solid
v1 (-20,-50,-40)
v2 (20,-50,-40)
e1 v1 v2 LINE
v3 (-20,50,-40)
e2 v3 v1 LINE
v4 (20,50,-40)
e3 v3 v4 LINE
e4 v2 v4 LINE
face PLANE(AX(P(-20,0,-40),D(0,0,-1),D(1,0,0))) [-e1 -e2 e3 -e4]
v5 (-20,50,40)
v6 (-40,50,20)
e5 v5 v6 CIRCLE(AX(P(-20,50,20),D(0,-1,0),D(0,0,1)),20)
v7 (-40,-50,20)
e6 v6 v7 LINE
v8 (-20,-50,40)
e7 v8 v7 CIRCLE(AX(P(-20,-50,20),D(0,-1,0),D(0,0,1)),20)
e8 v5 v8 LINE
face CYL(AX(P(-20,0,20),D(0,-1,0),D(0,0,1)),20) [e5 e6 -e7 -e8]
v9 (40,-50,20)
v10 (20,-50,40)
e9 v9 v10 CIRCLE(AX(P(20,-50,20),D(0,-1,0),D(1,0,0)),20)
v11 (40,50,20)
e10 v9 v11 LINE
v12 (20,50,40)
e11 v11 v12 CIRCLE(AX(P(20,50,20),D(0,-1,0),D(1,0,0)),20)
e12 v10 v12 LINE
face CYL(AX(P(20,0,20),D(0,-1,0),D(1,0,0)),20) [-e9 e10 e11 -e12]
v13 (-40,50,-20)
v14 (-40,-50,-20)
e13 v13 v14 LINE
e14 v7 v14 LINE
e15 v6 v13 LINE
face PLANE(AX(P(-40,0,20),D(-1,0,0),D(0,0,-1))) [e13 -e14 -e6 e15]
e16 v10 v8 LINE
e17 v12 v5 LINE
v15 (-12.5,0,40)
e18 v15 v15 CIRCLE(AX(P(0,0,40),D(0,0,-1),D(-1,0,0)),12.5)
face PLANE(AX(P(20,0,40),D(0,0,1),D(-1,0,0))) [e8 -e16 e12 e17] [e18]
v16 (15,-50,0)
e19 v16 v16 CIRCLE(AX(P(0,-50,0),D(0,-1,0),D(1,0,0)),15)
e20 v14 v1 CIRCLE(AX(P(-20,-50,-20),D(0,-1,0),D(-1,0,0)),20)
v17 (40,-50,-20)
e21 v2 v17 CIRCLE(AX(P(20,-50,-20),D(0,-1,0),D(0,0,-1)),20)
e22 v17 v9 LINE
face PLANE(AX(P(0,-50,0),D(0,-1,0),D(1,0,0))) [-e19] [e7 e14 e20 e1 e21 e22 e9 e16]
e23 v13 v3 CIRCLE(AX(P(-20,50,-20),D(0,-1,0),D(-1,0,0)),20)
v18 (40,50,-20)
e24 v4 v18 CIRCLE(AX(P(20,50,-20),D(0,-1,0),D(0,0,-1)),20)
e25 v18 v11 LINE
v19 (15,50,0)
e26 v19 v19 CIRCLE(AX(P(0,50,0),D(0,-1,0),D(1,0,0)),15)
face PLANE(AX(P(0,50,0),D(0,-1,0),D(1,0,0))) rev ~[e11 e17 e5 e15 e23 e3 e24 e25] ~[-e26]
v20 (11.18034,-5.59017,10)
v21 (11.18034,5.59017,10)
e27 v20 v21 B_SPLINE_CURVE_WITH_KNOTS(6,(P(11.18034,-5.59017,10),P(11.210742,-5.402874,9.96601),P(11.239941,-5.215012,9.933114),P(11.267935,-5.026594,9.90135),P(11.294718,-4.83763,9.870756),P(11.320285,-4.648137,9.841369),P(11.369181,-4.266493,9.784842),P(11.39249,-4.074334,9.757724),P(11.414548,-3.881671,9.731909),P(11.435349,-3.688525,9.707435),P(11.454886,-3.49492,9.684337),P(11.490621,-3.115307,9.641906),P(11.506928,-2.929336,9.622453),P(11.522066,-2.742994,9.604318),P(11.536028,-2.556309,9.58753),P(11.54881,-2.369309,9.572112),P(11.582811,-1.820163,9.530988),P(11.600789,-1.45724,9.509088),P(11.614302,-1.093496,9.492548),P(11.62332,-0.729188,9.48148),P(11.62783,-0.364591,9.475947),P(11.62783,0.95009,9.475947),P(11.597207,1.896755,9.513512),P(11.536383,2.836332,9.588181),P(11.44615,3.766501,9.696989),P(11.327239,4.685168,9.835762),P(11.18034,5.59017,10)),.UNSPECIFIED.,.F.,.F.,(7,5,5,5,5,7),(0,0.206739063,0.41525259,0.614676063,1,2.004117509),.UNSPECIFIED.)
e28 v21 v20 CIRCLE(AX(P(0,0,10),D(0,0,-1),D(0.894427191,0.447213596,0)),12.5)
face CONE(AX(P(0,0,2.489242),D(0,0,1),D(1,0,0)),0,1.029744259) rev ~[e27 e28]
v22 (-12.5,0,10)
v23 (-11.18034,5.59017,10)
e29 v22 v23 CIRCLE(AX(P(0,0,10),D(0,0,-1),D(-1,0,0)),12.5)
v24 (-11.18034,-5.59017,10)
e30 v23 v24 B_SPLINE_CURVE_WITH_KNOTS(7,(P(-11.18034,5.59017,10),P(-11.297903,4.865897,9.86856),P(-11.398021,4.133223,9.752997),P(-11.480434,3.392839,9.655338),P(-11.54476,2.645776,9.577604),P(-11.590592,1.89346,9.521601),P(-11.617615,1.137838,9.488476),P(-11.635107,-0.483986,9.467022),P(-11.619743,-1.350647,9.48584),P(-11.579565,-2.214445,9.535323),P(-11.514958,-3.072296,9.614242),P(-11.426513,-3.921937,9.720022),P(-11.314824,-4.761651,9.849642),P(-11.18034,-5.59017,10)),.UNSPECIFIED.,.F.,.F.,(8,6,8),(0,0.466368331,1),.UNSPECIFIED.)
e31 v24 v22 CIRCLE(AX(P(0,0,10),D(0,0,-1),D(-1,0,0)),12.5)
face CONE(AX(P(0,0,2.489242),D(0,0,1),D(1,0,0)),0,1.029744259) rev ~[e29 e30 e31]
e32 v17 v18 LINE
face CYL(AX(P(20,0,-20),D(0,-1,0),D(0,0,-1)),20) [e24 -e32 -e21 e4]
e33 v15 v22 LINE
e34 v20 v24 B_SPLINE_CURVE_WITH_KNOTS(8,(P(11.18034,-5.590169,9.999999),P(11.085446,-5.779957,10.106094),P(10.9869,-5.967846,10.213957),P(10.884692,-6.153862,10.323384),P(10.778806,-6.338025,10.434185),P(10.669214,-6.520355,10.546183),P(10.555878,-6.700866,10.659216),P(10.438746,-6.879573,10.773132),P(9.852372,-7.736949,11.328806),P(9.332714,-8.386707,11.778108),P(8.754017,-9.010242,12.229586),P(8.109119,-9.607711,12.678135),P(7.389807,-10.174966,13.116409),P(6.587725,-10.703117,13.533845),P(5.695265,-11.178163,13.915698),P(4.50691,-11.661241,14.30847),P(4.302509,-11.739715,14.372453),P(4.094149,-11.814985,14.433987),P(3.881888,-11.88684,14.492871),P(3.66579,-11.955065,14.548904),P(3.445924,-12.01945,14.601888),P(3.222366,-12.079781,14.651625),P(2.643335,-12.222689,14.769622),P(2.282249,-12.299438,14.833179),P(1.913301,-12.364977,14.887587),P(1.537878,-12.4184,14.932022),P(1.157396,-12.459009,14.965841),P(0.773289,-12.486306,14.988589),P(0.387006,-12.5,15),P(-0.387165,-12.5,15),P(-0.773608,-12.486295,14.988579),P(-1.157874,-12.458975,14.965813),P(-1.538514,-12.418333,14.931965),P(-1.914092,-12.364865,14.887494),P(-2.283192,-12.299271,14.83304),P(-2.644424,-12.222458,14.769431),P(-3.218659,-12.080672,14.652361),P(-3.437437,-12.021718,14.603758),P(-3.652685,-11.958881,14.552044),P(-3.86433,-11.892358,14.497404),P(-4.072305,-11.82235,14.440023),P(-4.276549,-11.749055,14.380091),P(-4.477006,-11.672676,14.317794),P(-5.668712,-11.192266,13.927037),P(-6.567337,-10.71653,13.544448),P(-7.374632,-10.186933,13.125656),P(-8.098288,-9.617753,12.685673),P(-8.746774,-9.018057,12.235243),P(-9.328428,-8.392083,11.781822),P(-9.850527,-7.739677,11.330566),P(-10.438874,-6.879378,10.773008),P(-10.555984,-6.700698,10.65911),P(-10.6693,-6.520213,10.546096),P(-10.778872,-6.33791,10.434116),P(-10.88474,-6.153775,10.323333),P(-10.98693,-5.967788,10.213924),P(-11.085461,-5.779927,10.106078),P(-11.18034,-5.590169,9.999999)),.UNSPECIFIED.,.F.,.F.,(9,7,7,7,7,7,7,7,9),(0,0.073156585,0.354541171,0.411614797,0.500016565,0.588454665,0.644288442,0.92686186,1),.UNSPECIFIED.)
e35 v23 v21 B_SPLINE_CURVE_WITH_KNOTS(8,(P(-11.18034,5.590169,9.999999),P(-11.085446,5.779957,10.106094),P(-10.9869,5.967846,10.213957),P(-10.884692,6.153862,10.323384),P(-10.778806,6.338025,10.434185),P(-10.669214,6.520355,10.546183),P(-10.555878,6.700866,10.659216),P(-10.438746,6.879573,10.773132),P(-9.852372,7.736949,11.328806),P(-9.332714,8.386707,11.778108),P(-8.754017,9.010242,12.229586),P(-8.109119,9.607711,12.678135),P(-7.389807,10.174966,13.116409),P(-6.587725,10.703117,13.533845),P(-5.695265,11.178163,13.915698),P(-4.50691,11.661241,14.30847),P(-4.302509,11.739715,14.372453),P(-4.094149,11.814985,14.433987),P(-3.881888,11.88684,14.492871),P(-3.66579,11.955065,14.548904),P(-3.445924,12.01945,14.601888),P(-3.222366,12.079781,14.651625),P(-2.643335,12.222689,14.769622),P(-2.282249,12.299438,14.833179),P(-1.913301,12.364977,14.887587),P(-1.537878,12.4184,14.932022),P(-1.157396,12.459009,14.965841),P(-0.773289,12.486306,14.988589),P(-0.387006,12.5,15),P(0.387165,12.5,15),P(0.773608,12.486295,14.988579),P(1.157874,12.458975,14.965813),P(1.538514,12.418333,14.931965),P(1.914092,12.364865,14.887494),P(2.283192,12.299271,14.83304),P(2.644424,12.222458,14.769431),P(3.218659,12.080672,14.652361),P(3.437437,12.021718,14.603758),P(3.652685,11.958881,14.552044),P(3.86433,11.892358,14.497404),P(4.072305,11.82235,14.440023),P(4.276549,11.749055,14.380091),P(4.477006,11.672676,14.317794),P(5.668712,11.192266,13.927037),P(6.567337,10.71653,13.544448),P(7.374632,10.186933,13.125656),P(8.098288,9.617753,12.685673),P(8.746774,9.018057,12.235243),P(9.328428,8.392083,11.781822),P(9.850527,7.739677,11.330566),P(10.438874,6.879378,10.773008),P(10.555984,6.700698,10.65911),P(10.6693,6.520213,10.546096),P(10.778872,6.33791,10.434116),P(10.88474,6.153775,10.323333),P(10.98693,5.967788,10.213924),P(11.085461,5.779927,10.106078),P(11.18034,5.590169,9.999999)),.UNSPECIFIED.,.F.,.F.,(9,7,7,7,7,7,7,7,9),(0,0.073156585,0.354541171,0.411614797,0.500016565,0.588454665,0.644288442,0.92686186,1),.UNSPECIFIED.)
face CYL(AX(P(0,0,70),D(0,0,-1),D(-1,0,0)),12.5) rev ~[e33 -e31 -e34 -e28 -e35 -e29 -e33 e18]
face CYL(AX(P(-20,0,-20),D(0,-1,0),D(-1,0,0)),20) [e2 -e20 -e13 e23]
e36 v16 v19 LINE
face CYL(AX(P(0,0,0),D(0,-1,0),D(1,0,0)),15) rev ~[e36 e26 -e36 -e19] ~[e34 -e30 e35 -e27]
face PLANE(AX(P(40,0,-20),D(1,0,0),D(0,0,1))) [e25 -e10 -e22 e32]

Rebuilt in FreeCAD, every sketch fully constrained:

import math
import FreeCAD as App
import Part
import Sketcher
from FreeCAD import Vector
Q = App.Units.Quantity

doc = App.newDocument("Part")
body = doc.addObject("PartDesign::Body", "Body")

sketch1 = body.newObject("Sketcher::SketchObject", "Sketch")
sketch1.AttachmentSupport = (doc.getObject("XZ_Plane"), [""])
sketch1.MapMode = "FlatFace"
sketch1.addGeometry([
    Part.LineSegment(Vector(20, 40, 0), Vector(-20, 40, 0)),
    Part.ArcOfCircle(Part.Circle(Vector(-20, 20, 0), Vector(0, 0, 1), 20), math.radians(90), math.radians(180)),
    Part.LineSegment(Vector(-40, 20, 0), Vector(-40, -20, 0)),
    Part.ArcOfCircle(Part.Circle(Vector(-20, -20, 0), Vector(0, 0, 1), 20), math.radians(180), math.radians(270)),
    Part.LineSegment(Vector(-20, -40, 0), Vector(20, -40, 0)),
    Part.ArcOfCircle(Part.Circle(Vector(20, -20, 0), Vector(0, 0, 1), 20), math.radians(-90), math.radians(0)),
    Part.LineSegment(Vector(40, -20, 0), Vector(40, 20, 0)),
    Part.ArcOfCircle(Part.Circle(Vector(20, 20, 0), Vector(0, 0, 1), 20), math.radians(0), math.radians(90)),
    Part.Circle(Vector(0, 0, 0), Vector(0, 0, 1), 15),
], False)
sketch1.addConstraint([
    Sketcher.Constraint("Tangent", 0, 2, 1, 1),
    Sketcher.Constraint("Tangent", 1, 2, 2, 1),
    Sketcher.Constraint("Tangent", 2, 2, 3, 1),
    Sketcher.Constraint("Tangent", 3, 2, 4, 1),
    Sketcher.Constraint("Tangent", 4, 2, 5, 1),
    Sketcher.Constraint("Tangent", 5, 2, 6, 1),
    Sketcher.Constraint("Tangent", 6, 2, 7, 1),
    Sketcher.Constraint("Tangent", 7, 2, 0, 1),
    Sketcher.Constraint("Horizontal", 0),
    Sketcher.Constraint("Vertical", 2),
    Sketcher.Constraint("Horizontal", 4),
    Sketcher.Constraint("Vertical", 6),
    Sketcher.Constraint("Coincident", 8, 3, -1, 1),
    Sketcher.Constraint("Equal", 1, 3),
    Sketcher.Constraint("Equal", 3, 5),
    Sketcher.Constraint("Equal", 5, 7),
    Sketcher.Constraint("Symmetric", 1, 3, 5, 3, -1, 1),
    Sketcher.Constraint("Equal", 4, 2),
    Sketcher.Constraint("Diameter", 8, Q("30 mm")),
    Sketcher.Constraint("Radius", 1, Q("20 mm")),
    Sketcher.Constraint("DistanceX", 0, 2, 0, 1, Q("40 mm")),
])
pad1 = body.newObject("PartDesign::Pad", "Pad")
pad1.Profile = sketch1
pad1.Type = "TwoLengths"
pad1.Length = 50
pad1.Length2 = 50

sketch2 = body.newObject("Sketcher::SketchObject", "Sketch001")
sketch2.AttachmentSupport = (doc.getObject("XY_Plane"), [""])
sketch2.MapMode = "FlatFace"
sketch2.AttachmentOffset = App.Placement(Vector(0, 0, 40), App.Rotation())
sketch2.addGeometry(Part.Circle(Vector(0, 0, 0), Vector(0, 0, 1), 12), False)
sketch2.addConstraint([
    Sketcher.Constraint("Coincident", 0, 3, -1, 1),
    Sketcher.Constraint("Diameter", 0, Q("25 mm")),
])
doc.recompute()
hole = body.newObject("PartDesign::Hole", "Hole")
hole.Profile = sketch2
hole.ThreadType = "None"
hole.Diameter = 25
hole.DepthType = "Dimension"
hole.Depth = 30
hole.DrillPoint = "Angled"
hole.DrillPointAngle = 118

doc.recompute()
